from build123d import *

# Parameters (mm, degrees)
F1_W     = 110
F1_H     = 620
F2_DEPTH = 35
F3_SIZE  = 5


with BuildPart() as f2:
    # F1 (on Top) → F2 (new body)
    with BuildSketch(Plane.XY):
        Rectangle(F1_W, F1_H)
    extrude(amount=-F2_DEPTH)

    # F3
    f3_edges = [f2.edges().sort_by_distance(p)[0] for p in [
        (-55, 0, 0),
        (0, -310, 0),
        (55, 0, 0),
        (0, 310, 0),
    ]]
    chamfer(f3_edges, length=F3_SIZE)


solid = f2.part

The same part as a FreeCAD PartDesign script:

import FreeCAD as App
import Part
import Sketcher

V = App.Vector
Q = App.Units.Quantity


def edges_at(feature, points):
    """Names of the edges that pass closest to the given points."""
    edges = feature.Shape.Edges
    near = lambda p: min(range(len(edges)), key=lambda i: edges[i].distToShape(Part.Vertex(*p))[0])
    return sorted({f"Edge{near(p) + 1}" for p in points})

doc = App.newDocument("Part")
body = doc.addObject("PartDesign::Body", "Body")

# Sketch on XY plane
sketch1 = body.newObject("Sketcher::SketchObject", "Sketch")
sketch1.AttachmentSupport = (doc.getObject("XY_Plane"), [""])
sketch1.MapMode = "FlatFace"
sketch1.addGeometry([
    Part.LineSegment(V(-55, 310, 0), V(-55, -310, 0)),
    Part.LineSegment(V(-55, -310, 0), V(55, -310, 0)),
    Part.LineSegment(V(55, -310, 0), V(55, 310, 0)),
    Part.LineSegment(V(55, 310, 0), V(-55, 310, 0)),
], False)
sketch1.addConstraint([
    Sketcher.Constraint("Coincident", 0, 2, 1, 1),
    Sketcher.Constraint("Coincident", 1, 2, 2, 1),
    Sketcher.Constraint("Coincident", 2, 2, 3, 1),
    Sketcher.Constraint("Coincident", 3, 2, 0, 1),
    Sketcher.Constraint("Vertical", 0),
    Sketcher.Constraint("Horizontal", 1),
    Sketcher.Constraint("Vertical", 2),
    Sketcher.Constraint("Horizontal", 3),
    Sketcher.Constraint("Symmetric", 0, 2, 2, 2, -1, 1),
    Sketcher.Constraint("DistanceX", 1, 1, 1, 2, Q("110 mm")),
    Sketcher.Constraint("DistanceY", 0, 2, 0, 1, Q("620 mm")),
])
pad1 = body.newObject("PartDesign::Pad", "Pad")
pad1.Profile = sketch1
pad1.Length = 35
pad1.Reversed = True
doc.recompute()

chamfer = body.newObject("PartDesign::Chamfer", "Chamfer")
chamfer.Base = (pad1, edges_at(pad1, [
    (-55, 0, 0),
    (0, -310, 0),
    (55, 0, 0),
    (0, 310, 0),
]))
chamfer.Size = 5

doc.recompute()
